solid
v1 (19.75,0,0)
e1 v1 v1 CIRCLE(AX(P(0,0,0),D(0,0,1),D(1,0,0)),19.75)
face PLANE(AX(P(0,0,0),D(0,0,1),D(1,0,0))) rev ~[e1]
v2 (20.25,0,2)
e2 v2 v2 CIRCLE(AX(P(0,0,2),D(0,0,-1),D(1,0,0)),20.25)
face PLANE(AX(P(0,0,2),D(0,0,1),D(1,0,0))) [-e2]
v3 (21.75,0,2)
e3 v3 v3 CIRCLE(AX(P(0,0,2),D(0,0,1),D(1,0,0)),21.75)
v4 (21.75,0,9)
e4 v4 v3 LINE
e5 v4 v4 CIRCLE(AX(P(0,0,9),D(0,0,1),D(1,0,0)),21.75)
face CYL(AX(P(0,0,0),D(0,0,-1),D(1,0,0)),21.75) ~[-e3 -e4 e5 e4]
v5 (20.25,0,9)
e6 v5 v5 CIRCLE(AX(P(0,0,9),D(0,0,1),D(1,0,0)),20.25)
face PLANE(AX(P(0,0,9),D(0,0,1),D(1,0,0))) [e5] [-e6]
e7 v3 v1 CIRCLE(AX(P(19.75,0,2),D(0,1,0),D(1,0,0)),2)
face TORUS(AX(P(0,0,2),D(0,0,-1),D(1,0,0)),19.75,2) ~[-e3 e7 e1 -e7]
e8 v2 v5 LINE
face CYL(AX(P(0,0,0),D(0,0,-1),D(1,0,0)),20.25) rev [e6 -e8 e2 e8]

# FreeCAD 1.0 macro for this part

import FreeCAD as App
import Part
import Sketcher
Q = App.Units.Quantity


def edges_at(feature, points):
    """Names of the edges that pass closest to the given points."""
    edges = feature.Shape.Edges
    near = lambda p: min(range(len(edges)), key=lambda i: edges[i].distToShape(Part.Vertex(*p))[0])
    return sorted({f"Edge{near(p) + 1}" for p in points})

doc = App.newDocument("Part")
body = doc.addObject("PartDesign::Body", "Body")

sketch1 = body.newObject("Sketcher::SketchObject", "Sketch")
sketch1.AttachmentSupport = (doc.getObject("XY_Plane"), [""])
sketch1.MapMode = "FlatFace"
sketch1.addGeometry(Part.Circle(App.Vector(0, 0, 0), App.Vector(0, 0, 1), 21.75), False)
sketch1.addConstraint([
    Sketcher.Constraint("Coincident", 0, 3, -1, 1),
    Sketcher.Constraint("Diameter", 0, Q("43.5 mm")),
])
pad1 = body.newObject("PartDesign::Pad", "Pad")
pad1.Profile = sketch1
pad1.Length = 2

sketch2 = body.newObject("Sketcher::SketchObject", "Sketch001")
sketch2.AttachmentSupport = (doc.getObject("XY_Plane"), [""])
sketch2.MapMode = "FlatFace"
sketch2.addGeometry([
    Part.Circle(App.Vector(0, 0, 0), App.Vector(0, 0, 1), 21.75),
    Part.Circle(App.Vector(0, 0, 0), App.Vector(0, 0, 1), 20.25),
], False)
sketch2.addConstraint([
    Sketcher.Constraint("Coincident", 0, 3, -1, 1),
    Sketcher.Constraint("Coincident", 1, 3, -1, 1),
    Sketcher.Constraint("Diameter", 0, Q("43.5 mm")),
    Sketcher.Constraint("Diameter", 1, Q("40.5 mm")),
])
pad2 = body.newObject("PartDesign::Pad", "Pad001")
pad2.Profile = sketch2
pad2.Length = 9
doc.recompute()

fillet = body.newObject("PartDesign::Fillet", "Fillet")
fillet.Base = (pad2, edges_at(pad2, [(-21.75, 0, 0)]))
fillet.Radius = 2

doc.recompute()
